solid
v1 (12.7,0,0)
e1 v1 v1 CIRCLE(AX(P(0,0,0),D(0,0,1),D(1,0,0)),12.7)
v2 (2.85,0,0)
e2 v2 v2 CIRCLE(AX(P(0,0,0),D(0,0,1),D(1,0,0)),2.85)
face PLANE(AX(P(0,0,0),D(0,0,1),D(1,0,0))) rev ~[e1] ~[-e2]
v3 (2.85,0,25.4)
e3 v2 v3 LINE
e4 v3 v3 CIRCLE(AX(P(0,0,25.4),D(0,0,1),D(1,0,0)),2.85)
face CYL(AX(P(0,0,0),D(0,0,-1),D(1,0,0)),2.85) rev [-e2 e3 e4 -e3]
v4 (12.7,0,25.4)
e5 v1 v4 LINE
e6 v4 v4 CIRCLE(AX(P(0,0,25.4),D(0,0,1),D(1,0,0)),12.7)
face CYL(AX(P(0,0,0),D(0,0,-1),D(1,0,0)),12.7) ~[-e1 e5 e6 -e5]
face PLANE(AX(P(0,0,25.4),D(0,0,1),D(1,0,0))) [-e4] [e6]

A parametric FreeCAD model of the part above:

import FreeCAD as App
import Part
import Sketcher
Q = App.Units.Quantity

doc = App.newDocument("Part")
body = doc.addObject("PartDesign::Body", "Body")

# Sketch on XY plane
sketch1 = doc.addObject("Sketcher::SketchObject", "Sketch")
body.addObject(sketch1)
sketch1.AttachmentSupport = (doc.XY_Plane, [""])
sketch1.MapMode = "FlatFace"
sketch1.addGeometry(Part.Circle(App.Vector(0, 0, 0), App.Vector(0, 0, 1), 12.7), False)
sketch1.addGeometry(Part.Circle(App.Vector(0, 0, 0), App.Vector(0, 0, 1), 2.9), False)
sketch1.addConstraint(Sketcher.Constraint("Coincident", 0, 3, -1, 1))
sketch1.addConstraint(Sketcher.Constraint("Coincident", 1, 3, -1, 1))
sketch1.addConstraint(Sketcher.Constraint("Diameter", 0, Q("1 in")))
sketch1.addConstraint(Sketcher.Constraint("Diameter", 1, Q("0.2244 in")))
pad1 = doc.addObject("PartDesign::Pad", "Pad")
body.addObject(pad1)
pad1.Profile = sketch1
pad1.Length = Q("1 in")

doc.recompute()
